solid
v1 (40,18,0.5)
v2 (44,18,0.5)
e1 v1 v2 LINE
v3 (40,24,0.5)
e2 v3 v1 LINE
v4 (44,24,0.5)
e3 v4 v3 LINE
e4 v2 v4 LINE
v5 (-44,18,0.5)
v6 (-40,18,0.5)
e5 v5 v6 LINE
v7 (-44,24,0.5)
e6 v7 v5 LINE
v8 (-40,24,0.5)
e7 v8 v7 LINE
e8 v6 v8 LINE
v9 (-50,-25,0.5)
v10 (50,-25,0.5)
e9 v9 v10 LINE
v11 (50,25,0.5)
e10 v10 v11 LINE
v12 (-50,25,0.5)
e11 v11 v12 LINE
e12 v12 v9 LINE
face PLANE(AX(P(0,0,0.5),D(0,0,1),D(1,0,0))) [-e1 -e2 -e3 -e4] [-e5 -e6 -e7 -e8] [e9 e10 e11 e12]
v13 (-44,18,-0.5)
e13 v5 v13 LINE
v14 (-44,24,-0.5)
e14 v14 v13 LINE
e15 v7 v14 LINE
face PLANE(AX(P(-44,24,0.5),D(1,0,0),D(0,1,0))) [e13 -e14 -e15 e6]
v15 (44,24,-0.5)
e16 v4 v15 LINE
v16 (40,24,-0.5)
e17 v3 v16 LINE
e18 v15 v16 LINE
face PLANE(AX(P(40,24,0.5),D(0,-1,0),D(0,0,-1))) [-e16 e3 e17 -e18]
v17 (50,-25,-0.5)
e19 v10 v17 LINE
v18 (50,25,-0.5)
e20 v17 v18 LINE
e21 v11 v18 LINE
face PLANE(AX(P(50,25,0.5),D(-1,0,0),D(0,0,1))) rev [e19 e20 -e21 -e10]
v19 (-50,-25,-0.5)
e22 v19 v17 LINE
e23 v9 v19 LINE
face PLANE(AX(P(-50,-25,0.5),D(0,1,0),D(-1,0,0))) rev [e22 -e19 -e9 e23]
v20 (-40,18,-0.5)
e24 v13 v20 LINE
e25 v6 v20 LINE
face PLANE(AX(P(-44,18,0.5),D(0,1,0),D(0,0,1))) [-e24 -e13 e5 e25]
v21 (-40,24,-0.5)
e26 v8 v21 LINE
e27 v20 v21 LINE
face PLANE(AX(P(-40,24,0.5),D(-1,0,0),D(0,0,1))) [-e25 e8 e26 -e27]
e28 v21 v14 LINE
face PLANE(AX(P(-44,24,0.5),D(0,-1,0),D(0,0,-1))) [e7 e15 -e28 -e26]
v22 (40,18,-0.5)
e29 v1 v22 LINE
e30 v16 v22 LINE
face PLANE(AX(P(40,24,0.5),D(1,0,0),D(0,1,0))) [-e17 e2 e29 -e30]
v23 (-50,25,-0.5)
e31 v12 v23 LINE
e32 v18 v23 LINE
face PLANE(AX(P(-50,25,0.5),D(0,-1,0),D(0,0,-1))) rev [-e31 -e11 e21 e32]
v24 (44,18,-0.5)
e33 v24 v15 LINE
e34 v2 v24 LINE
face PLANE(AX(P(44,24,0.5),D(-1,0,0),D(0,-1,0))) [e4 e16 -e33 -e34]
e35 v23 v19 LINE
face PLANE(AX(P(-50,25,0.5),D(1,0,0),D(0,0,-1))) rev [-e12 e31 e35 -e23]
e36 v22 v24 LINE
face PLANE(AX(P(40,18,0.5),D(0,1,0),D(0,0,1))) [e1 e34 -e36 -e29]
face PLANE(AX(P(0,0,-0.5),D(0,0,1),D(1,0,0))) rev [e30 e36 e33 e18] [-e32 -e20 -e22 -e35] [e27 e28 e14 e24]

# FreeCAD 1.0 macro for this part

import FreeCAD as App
import Part
import Sketcher
from FreeCAD import Vector


def add_polygon(sketch, points):
    """Adds a closed chain of lines whose ends are joined by coincident constraints."""
    first, n = sketch.GeometryCount, len(points)
    for a, b in zip(points, points[1:] + points[:1]):
        sketch.addGeometry(Part.LineSegment(App.Vector(*a, 0), App.Vector(*b, 0)), False)
    for i in range(n):
        sketch.addConstraint(Sketcher.Constraint("Coincident", first + i, 2, first + (i + 1) % n, 1))

doc = App.newDocument("Part")
body = doc.addObject("PartDesign::Body", "Body")

sketch1 = doc.addObject("Sketcher::SketchObject", "Sketch")
body.addObject(sketch1)
sketch1.AttachmentSupport = (doc.XY_Plane, [""])
sketch1.MapMode = "FlatFace"
add_polygon(sketch1, [(-50, 25), (-50, -25), (50, -25), (50, 25)])
add_polygon(sketch1, [(-40, 18), (-44, 18), (-44, 24), (-40, 24)])
add_polygon(sketch1, [(44, 18), (40, 18), (40, 24), (44, 24)])
sketch1.addConstraint(Sketcher.Constraint("Vertical", 0))
sketch1.addConstraint(Sketcher.Constraint("Horizontal", 1))
sketch1.addConstraint(Sketcher.Constraint("Vertical", 2))
sketch1.addConstraint(Sketcher.Constraint("Horizontal", 3))
sketch1.addConstraint(Sketcher.Constraint("Horizontal", 4))
sketch1.addConstraint(Sketcher.Constraint("Vertical", 5))
sketch1.addConstraint(Sketcher.Constraint("Horizontal", 6))
sketch1.addConstraint(Sketcher.Constraint("Vertical", 7))
sketch1.addConstraint(Sketcher.Constraint("Horizontal", 8))
sketch1.addConstraint(Sketcher.Constraint("Vertical", 9))
sketch1.addConstraint(Sketcher.Constraint("Horizontal", 10))
sketch1.addConstraint(Sketcher.Constraint("Vertical", 11))
sketch1.addConstraint(Sketcher.Constraint("Symmetric", 0, 2, 2, 2, -1, 1))
sketch1.addConstraint(Sketcher.Constraint("Symmetric", 7, 2, 8, 2, -2))
sketch1.addConstraint(Sketcher.Constraint("Symmetric", 5, 2, 10, 2, -2))
sketch1.addConstraint(Sketcher.Constraint("DistanceX", 1, 1, 1, 2, 100.0))
sketch1.addConstraint(Sketcher.Constraint("DistanceX", 4, 2, 4, 1, 4.0))
sketch1.addConstraint(Sketcher.Constraint("DistanceY", 0, 2, 0, 1, 50.0))
sketch1.addConstraint(Sketcher.Constraint("DistanceY", 5, 1, 5, 2, 6.0))
sketch1.addConstraint(Sketcher.Constraint("DistanceX", 4, 2, -1, 1, 44.0))
sketch1.addConstraint(Sketcher.Constraint("DistanceY", -1, 1, 4, 2, 18.0))
pad1 = doc.addObject("PartDesign::Pad", "Pad")
body.addObject(pad1)
pad1.Profile = sketch1
pad1.Length = 1
pad1.Midplane = True

doc.recompute()
